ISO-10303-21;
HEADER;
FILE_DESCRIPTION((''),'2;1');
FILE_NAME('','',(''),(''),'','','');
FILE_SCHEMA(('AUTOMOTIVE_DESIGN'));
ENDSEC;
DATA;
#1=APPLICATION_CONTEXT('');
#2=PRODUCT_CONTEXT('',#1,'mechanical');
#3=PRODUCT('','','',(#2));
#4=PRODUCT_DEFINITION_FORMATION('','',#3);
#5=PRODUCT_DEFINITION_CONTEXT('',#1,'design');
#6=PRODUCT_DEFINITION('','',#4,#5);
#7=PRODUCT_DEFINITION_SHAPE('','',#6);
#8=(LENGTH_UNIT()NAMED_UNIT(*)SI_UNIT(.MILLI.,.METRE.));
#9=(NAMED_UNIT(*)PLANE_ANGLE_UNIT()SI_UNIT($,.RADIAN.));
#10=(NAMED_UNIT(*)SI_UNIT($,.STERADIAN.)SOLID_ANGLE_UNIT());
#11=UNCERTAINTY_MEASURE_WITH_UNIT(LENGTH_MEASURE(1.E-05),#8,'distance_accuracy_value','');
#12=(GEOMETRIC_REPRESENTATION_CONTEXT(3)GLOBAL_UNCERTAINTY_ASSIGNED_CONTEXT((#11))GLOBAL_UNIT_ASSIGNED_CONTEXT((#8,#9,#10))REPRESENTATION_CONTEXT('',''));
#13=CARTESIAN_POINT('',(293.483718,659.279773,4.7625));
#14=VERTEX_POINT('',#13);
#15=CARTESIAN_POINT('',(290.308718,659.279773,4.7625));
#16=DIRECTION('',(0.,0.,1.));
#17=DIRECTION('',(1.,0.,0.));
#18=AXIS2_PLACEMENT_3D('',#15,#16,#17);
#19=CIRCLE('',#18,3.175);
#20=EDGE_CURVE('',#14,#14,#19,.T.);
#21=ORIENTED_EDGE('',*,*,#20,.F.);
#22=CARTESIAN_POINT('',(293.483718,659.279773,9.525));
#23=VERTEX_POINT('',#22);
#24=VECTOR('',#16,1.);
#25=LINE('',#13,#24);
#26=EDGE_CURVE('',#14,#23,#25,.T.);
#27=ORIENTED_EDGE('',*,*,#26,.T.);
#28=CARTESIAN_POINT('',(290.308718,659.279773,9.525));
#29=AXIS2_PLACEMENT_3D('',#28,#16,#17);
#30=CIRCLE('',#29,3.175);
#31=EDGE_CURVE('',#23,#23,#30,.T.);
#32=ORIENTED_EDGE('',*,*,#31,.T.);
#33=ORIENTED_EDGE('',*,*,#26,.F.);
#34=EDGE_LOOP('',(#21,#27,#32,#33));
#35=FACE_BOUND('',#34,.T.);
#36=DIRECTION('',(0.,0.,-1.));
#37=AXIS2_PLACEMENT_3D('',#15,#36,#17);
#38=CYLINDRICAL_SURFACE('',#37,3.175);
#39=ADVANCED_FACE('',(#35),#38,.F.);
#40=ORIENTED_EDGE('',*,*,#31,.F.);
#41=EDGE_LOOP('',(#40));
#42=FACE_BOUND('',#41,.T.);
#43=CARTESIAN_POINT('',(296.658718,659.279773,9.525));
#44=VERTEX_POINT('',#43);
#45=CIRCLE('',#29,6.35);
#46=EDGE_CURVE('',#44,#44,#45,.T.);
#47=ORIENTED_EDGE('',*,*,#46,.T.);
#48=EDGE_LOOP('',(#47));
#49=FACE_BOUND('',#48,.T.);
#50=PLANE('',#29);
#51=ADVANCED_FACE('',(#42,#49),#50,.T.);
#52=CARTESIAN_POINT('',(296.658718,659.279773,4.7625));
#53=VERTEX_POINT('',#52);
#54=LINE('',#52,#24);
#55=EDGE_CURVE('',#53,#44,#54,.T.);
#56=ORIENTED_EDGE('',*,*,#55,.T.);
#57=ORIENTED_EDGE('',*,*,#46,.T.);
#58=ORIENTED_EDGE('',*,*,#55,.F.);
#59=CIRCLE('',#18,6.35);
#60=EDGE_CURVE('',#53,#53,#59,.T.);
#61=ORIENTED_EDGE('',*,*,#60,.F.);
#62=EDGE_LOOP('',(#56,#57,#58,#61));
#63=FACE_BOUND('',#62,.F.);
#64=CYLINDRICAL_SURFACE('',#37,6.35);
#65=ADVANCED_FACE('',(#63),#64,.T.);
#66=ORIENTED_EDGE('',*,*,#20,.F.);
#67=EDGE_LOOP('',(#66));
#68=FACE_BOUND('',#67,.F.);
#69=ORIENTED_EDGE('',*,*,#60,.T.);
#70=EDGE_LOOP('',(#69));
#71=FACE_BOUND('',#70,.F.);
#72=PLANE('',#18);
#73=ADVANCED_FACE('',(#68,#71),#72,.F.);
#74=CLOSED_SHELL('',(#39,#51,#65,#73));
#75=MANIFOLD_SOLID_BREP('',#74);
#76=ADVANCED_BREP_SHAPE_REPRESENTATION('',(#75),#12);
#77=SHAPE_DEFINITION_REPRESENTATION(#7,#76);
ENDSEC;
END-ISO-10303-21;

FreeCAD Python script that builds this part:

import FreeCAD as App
import Part
import Sketcher

V = App.Vector
Q = App.Units.Quantity

doc = App.newDocument("Part")
body = doc.addObject("PartDesign::Body", "Body")

# Sketch on XY plane
sketch1 = body.newObject("Sketcher::SketchObject", "Sketch")
sketch1.AttachmentSupport = (doc.getObject("XY_Plane"), [""])
sketch1.MapMode = "FlatFace"
sketch1.AttachmentOffset = App.Placement(V(0, 0, 0.1875 * 25.4), App.Rotation())
sketch1.addGeometry([
    Part.Circle(V(290.3, 659.3, 0), V(0, 0, 1), 6.3),
    Part.Circle(V(290.3, 659.3, 0), V(0, 0, 1), 3.2),
], False)
sketch1.addConstraint([
    Sketcher.Constraint("Coincident", 1, 3, 0, 3),
    Sketcher.Constraint("Diameter", 0, Q("0.5 in")),
    Sketcher.Constraint("Diameter", 1, Q("0.25 in")),
    Sketcher.Constraint("DistanceX", -1, 1, 0, 3, 290.308718),
    Sketcher.Constraint("DistanceY", -1, 1, 0, 3, 659.279773),
])
pad1 = body.newObject("PartDesign::Pad", "Pad")
pad1.Profile = sketch1
pad1.Length = Q("0.1875 in")

doc.recompute()
